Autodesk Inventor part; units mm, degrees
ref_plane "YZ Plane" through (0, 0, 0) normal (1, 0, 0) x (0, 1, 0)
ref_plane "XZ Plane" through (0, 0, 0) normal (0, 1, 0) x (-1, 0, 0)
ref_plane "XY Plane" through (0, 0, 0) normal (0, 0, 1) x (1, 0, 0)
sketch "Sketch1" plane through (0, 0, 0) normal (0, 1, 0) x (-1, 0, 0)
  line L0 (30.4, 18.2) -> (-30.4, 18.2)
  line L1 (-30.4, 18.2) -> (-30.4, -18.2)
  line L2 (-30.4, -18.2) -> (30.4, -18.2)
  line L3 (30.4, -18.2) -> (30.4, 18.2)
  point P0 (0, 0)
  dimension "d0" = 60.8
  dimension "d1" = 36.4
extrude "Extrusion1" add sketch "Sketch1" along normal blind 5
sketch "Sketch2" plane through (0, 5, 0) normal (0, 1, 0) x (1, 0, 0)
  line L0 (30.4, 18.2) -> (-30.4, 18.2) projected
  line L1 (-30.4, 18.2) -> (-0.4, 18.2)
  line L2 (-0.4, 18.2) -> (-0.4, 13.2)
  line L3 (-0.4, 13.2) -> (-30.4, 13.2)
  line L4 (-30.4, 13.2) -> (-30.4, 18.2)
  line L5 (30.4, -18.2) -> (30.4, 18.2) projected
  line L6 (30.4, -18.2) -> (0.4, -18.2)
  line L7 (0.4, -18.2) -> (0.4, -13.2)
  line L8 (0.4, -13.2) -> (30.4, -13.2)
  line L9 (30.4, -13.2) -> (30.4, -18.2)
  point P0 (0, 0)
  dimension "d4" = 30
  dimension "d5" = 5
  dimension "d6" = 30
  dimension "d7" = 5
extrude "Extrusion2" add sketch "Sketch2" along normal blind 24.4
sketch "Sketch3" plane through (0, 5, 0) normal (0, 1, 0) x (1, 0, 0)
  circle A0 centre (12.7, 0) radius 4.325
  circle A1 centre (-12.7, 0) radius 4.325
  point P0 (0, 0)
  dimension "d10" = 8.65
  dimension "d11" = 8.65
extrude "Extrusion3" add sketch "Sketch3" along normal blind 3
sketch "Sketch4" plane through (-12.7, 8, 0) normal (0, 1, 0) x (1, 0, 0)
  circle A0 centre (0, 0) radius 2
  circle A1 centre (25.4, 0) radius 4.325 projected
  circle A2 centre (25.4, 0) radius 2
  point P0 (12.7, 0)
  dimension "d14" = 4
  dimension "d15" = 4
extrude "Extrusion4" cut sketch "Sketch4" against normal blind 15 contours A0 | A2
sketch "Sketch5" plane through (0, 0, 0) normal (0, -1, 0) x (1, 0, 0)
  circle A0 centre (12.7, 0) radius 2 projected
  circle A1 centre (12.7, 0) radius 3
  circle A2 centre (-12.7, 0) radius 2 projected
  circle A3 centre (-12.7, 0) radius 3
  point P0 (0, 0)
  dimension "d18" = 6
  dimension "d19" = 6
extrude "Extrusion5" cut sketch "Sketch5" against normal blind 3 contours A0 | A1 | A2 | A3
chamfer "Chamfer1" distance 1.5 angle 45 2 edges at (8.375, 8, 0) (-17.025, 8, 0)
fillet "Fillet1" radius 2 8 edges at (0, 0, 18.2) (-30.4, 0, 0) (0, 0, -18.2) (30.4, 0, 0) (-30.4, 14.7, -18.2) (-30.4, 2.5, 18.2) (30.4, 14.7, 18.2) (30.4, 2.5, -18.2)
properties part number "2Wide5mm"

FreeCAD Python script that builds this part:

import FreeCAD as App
import Part
import Sketcher
Q = App.Units.Quantity


def edges_at(feature, points):
    """Names of the edges that pass closest to the given points."""
    edges = feature.Shape.Edges
    near = lambda p: min(range(len(edges)), key=lambda i: edges[i].distToShape(Part.Vertex(*p))[0])
    return sorted({f"Edge{near(p) + 1}" for p in points})

doc = App.newDocument("Part")
body = doc.addObject("PartDesign::Body", "Body")

# Sketch on XZ plane
sketch1 = body.newObject("Sketcher::SketchObject", "Sketch")
sketch1.AttachmentSupport = (doc.getObject("XZ_Plane"), [""])
sketch1.MapMode = "FlatFace"
sketch1.addGeometry(Part.LineSegment(App.Vector(-30, -18, 0), App.Vector(-30, 18, 0)), False)
sketch1.addGeometry(Part.LineSegment(App.Vector(-30, 18, 0), App.Vector(30, 18, 0)), False)
sketch1.addGeometry(Part.LineSegment(App.Vector(30, 18, 0), App.Vector(30, -18, 0)), False)
sketch1.addGeometry(Part.LineSegment(App.Vector(30, -18, 0), App.Vector(-30, -18, 0)), False)
sketch1.addConstraint(Sketcher.Constraint("Coincident", 0, 2, 1, 1))
sketch1.addConstraint(Sketcher.Constraint("Coincident", 1, 2, 2, 1))
sketch1.addConstraint(Sketcher.Constraint("Coincident", 2, 2, 3, 1))
sketch1.addConstraint(Sketcher.Constraint("Coincident", 3, 2, 0, 1))
sketch1.addConstraint(Sketcher.Constraint("Vertical", 0))
sketch1.addConstraint(Sketcher.Constraint("Horizontal", 1))
sketch1.addConstraint(Sketcher.Constraint("Vertical", 2))
sketch1.addConstraint(Sketcher.Constraint("Horizontal", 3))
sketch1.addConstraint(Sketcher.Constraint("Symmetric", 0, 2, 2, 2, -1, 1))
sketch1.addConstraint(Sketcher.Constraint("DistanceX", 1, 1, 1, 2, Q("60.8 mm")))
sketch1.addConstraint(Sketcher.Constraint("DistanceY", 0, 1, 0, 2, Q("36.4 mm")))
pad1 = body.newObject("PartDesign::Pad", "Pad")
pad1.Profile = sketch1
pad1.Length = 5
pad1.Reversed = True

# Sketch on XZ plane
sketch2 = body.newObject("Sketcher::SketchObject", "Sketch001")
sketch2.AttachmentSupport = (doc.getObject("XZ_Plane"), [""])
sketch2.MapMode = "FlatFace"
sketch2.AttachmentOffset = App.Placement(App.Vector(0, 0, -5), App.Rotation())
sketch2.addGeometry(Part.LineSegment(App.Vector(0, -13, 0), App.Vector(0, -18, 0)), False)
sketch2.addGeometry(Part.LineSegment(App.Vector(0, -18, 0), App.Vector(-30, -18, 0)), False)
sketch2.addGeometry(Part.LineSegment(App.Vector(-30, -18, 0), App.Vector(-30, -13, 0)), False)
sketch2.addGeometry(Part.LineSegment(App.Vector(-30, -13, 0), App.Vector(0, -13, 0)), False)
sketch2.addGeometry(Part.LineSegment(App.Vector(30, 18, 0), App.Vector(30, 13, 0)), False)
sketch2.addGeometry(Part.LineSegment(App.Vector(30, 13, 0), App.Vector(0, 13, 0)), False)
sketch2.addGeometry(Part.LineSegment(App.Vector(0, 13, 0), App.Vector(0, 18, 0)), False)
sketch2.addGeometry(Part.LineSegment(App.Vector(0, 18, 0), App.Vector(30, 18, 0)), False)
sketch2.addConstraint(Sketcher.Constraint("Coincident", 0, 2, 1, 1))
sketch2.addConstraint(Sketcher.Constraint("Coincident", 1, 2, 2, 1))
sketch2.addConstraint(Sketcher.Constraint("Coincident", 2, 2, 3, 1))
sketch2.addConstraint(Sketcher.Constraint("Coincident", 3, 2, 0, 1))
sketch2.addConstraint(Sketcher.Constraint("Coincident", 4, 2, 5, 1))
sketch2.addConstraint(Sketcher.Constraint("Coincident", 5, 2, 6, 1))
sketch2.addConstraint(Sketcher.Constraint("Coincident", 6, 2, 7, 1))
sketch2.addConstraint(Sketcher.Constraint("Coincident", 7, 2, 4, 1))
sketch2.addConstraint(Sketcher.Constraint("Vertical", 0))
sketch2.addConstraint(Sketcher.Constraint("Horizontal", 1))
sketch2.addConstraint(Sketcher.Constraint("Vertical", 2))
sketch2.addConstraint(Sketcher.Constraint("Horizontal", 3))
sketch2.addConstraint(Sketcher.Constraint("Vertical", 4))
sketch2.addConstraint(Sketcher.Constraint("Horizontal", 5))
sketch2.addConstraint(Sketcher.Constraint("Vertical", 6))
sketch2.addConstraint(Sketcher.Constraint("Horizontal", 7))
sketch2.addConstraint(Sketcher.Constraint("Symmetric", 2, 2, 4, 2, -1, 1))
sketch2.addConstraint(Sketcher.Constraint("Symmetric", 0, 2, 6, 2, -1, 1))
sketch2.addConstraint(Sketcher.Constraint("DistanceX", 1, 2, 1, 1, Q("30 mm")))
sketch2.addConstraint(Sketcher.Constraint("DistanceY", 0, 2, 0, 1, Q("5 mm")))
sketch2.addConstraint(Sketcher.Constraint("DistanceX", 0, 2, -1, 1, Q("0.4 mm")))
sketch2.addConstraint(Sketcher.Constraint("DistanceY", 0, 2, -1, 1, Q("18.2 mm")))
pad2 = body.newObject("PartDesign::Pad", "Pad001")
pad2.Profile = sketch2
pad2.Length = 24.4
pad2.Reversed = True

# Sketch on XZ plane
sketch3 = body.newObject("Sketcher::SketchObject", "Sketch002")
sketch3.AttachmentSupport = (doc.getObject("XZ_Plane"), [""])
sketch3.MapMode = "FlatFace"
sketch3.AttachmentOffset = App.Placement(App.Vector(0, 0, -5), App.Rotation())
sketch3.addGeometry(Part.Circle(App.Vector(12.7, 0, 0), App.Vector(0, 0, 1), 4.3), False)
sketch3.addGeometry(Part.Circle(App.Vector(-12.7, 0, 0), App.Vector(0, 0, 1), 4.3), False)
sketch3.addConstraint(Sketcher.Constraint("Equal", 0, 1))
sketch3.addConstraint(Sketcher.Constraint("Symmetric", 0, 3, 1, 3, -1, 1))
sketch3.addConstraint(Sketcher.Constraint("PointOnObject", 0, 3, -1))
sketch3.addConstraint(Sketcher.Constraint("Diameter", 0, Q("8.65 mm")))
sketch3.addConstraint(Sketcher.Constraint("DistanceX", -1, 1, 0, 3, Q("12.7 mm")))
pad3 = body.newObject("PartDesign::Pad", "Pad002")
pad3.Profile = sketch3
pad3.Length = 3
pad3.Reversed = True

# Sketch on XZ plane
sketch4 = body.newObject("Sketcher::SketchObject", "Sketch003")
sketch4.AttachmentSupport = (doc.getObject("XZ_Plane"), [""])
sketch4.MapMode = "FlatFace"
sketch4.AttachmentOffset = App.Placement(App.Vector(0, 0, -8), App.Rotation())
sketch4.addGeometry(Part.Circle(App.Vector(-12.7, 0, 0), App.Vector(0, 0, 1), 2), False)
sketch4.addGeometry(Part.Circle(App.Vector(12.7, 0, 0), App.Vector(0, 0, 1), 2), False)
sketch4.addConstraint(Sketcher.Constraint("Equal", 0, 1))
sketch4.addConstraint(Sketcher.Constraint("Symmetric", 0, 3, 1, 3, -1, 1))
sketch4.addConstraint(Sketcher.Constraint("PointOnObject", 0, 3, -1))
sketch4.addConstraint(Sketcher.Constraint("Diameter", 0, Q("4 mm")))
sketch4.addConstraint(Sketcher.Constraint("DistanceX", 0, 3, -1, 1, Q("12.7 mm")))
pocket1 = body.newObject("PartDesign::Pocket", "Pocket")
pocket1.Profile = sketch4
pocket1.Length = 15
pocket1.Reversed = True

# Sketch on XZ plane
sketch5 = body.newObject("Sketcher::SketchObject", "Sketch004")
sketch5.AttachmentSupport = (doc.getObject("XZ_Plane"), [""])
sketch5.MapMode = "FlatFace"
sketch5.addGeometry(Part.Circle(App.Vector(12.7, 0, 0), App.Vector(0, 0, 1), 3), False)
sketch5.addGeometry(Part.Circle(App.Vector(-12.7, 0, 0), App.Vector(0, 0, 1), 3), False)
sketch5.addConstraint(Sketcher.Constraint("Equal", 0, 1))
sketch5.addConstraint(Sketcher.Constraint("Symmetric", 0, 3, 1, 3, -1, 1))
sketch5.addConstraint(Sketcher.Constraint("PointOnObject", 0, 3, -1))
sketch5.addConstraint(Sketcher.Constraint("Diameter", 0, Q("6 mm")))
sketch5.addConstraint(Sketcher.Constraint("DistanceX", -1, 1, 0, 3, Q("12.7 mm")))
pocket2 = body.newObject("PartDesign::Pocket", "Pocket001")
pocket2.Profile = sketch5
pocket2.Length = 3
doc.recompute()

chamfer = body.newObject("PartDesign::Chamfer", "Chamfer")
chamfer.Base = (pocket2, edges_at(pocket2, [(8.375, 8, 0), (-17.025, 8, 0)]))
chamfer.Size = 1.5
doc.recompute()

fillet = body.newObject("PartDesign::Fillet", "Fillet")
fillet.Base = (chamfer, edges_at(chamfer, [
    (0, 0, 18.2),
    (-30.4, 0, 0),
    (0, 0, -18.2),
    (30.4, 0, 0),
    (-30.4, 14.7, -18.2),
    (-30.4, 2.5, 18.2),
    (30.4, 14.7, 18.2),
    (30.4, 2.5, -18.2),
]))
fillet.Radius = 2

doc.recompute()
